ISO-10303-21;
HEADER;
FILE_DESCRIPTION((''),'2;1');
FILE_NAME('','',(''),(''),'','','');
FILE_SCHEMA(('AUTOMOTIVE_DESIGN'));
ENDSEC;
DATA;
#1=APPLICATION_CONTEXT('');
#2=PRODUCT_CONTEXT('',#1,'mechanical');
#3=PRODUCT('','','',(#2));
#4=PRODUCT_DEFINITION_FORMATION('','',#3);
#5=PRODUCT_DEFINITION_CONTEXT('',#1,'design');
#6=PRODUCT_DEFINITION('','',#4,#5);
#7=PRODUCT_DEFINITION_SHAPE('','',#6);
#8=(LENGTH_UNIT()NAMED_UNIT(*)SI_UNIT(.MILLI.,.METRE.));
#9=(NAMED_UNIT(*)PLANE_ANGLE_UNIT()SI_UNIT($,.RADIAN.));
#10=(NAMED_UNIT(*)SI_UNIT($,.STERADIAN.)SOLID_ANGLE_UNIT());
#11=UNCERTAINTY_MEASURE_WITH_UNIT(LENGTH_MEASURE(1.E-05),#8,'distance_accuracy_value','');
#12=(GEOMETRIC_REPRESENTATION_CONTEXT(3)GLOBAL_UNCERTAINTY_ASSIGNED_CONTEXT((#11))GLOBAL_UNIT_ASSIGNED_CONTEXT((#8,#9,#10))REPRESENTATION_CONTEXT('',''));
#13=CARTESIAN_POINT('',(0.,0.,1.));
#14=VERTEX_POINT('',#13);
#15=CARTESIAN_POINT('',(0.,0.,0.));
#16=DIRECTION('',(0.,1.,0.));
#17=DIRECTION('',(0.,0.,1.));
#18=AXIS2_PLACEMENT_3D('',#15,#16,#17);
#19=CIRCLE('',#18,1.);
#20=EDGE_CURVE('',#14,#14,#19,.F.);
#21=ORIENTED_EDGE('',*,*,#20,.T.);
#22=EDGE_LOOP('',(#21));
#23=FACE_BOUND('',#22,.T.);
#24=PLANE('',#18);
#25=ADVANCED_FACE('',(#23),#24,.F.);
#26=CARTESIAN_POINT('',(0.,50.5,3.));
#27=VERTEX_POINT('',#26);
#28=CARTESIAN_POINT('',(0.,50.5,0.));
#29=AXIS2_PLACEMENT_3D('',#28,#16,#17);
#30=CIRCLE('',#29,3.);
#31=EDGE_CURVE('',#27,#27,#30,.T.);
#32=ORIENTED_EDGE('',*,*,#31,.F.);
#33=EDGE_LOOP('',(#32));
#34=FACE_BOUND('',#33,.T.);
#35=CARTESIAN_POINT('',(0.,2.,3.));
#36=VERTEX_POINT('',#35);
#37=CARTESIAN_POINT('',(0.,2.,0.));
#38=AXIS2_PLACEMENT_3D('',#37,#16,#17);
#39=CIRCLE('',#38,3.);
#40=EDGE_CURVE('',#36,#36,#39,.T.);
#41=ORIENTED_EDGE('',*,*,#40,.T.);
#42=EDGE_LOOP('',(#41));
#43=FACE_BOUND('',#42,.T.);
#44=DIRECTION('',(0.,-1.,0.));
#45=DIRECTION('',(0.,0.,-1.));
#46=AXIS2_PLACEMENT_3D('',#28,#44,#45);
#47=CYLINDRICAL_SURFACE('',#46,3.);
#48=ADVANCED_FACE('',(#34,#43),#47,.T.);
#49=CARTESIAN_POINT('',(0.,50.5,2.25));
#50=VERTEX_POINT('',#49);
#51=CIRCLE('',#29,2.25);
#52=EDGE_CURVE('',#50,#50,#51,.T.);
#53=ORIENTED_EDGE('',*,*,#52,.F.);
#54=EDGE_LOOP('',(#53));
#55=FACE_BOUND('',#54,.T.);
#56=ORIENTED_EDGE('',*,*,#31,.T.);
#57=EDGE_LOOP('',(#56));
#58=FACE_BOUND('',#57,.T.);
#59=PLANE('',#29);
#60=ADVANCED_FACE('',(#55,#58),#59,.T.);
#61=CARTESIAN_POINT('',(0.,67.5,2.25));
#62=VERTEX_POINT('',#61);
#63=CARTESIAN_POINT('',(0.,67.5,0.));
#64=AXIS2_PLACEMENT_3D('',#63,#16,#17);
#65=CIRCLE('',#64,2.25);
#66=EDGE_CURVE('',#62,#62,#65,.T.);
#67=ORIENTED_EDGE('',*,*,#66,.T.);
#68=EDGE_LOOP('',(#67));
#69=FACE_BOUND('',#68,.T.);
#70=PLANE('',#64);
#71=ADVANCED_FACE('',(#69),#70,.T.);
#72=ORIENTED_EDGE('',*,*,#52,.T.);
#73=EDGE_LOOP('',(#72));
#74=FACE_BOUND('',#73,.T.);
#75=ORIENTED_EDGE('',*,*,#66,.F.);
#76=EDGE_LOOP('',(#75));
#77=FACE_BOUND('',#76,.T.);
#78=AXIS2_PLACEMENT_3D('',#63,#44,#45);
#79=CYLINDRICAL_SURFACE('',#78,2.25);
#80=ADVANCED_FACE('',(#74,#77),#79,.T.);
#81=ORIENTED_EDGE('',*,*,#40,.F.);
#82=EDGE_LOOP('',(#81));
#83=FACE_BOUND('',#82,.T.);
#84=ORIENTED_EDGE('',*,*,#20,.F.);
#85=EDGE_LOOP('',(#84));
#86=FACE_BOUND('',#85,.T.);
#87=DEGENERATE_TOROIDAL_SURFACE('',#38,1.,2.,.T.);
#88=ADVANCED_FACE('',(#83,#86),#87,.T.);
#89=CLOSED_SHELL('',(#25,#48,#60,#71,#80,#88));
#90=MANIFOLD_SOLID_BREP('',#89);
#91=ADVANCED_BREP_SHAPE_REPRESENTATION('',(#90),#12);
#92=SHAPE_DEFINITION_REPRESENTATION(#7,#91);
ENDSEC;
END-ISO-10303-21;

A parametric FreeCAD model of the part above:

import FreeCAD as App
import Part
import Sketcher
from FreeCAD import Vector


def edges_at(feature, points):
    """Names of the edges that pass closest to the given points."""
    edges = feature.Shape.Edges
    near = lambda p: min(range(len(edges)), key=lambda i: edges[i].distToShape(Part.Vertex(*p))[0])
    return sorted({f"Edge{near(p) + 1}" for p in points})

doc = App.newDocument("Part")
params = doc.addObject("Spreadsheet::Sheet", "Params")
for row, (alias, value) in enumerate([
    ("sketch1_diameter", "6 mm"),
    ("pad1_length", "50.5 mm"),
    ("fillet_radius", "2 mm"),
    ("sketch2_diameter", "4.5 mm"),
    ("pad2_length", "17 mm"),
], start=1):
    params.set(f"A{row}", alias)
    params.set(f"B{row}", "=" + value)
    params.setAlias(f"B{row}", alias)

body = doc.addObject("PartDesign::Body", "Body")

sketch1 = body.newObject("Sketcher::SketchObject", "Sketch")
sketch1.AttachmentSupport = (doc.getObject("XZ_Plane"), [""])
sketch1.MapMode = "FlatFace"
sketch1.addGeometry(Part.Circle(Vector(0, 0, 0), Vector(0, 0, 1), 3), False)
sketch1.addConstraint([
    Sketcher.Constraint("Coincident", 0, 3, -1, 1),
    Sketcher.Constraint("Diameter", 0, 6.0),
])
sketch1.setExpression("Constraints[1]", "Params.sketch1_diameter")
pad1 = body.newObject("PartDesign::Pad", "Pad")
pad1.Profile = sketch1
pad1.setExpression("Length", "Params.pad1_length")
pad1.Reversed = True
doc.recompute()

fillet = body.newObject("PartDesign::Fillet", "Fillet")
fillet.Base = (pad1, edges_at(pad1, [(0, 0, -3)]))
fillet.setExpression("Radius", "Params.fillet_radius")

sketch2 = body.newObject("Sketcher::SketchObject", "Sketch001")
sketch2.AttachmentSupport = (doc.getObject("XZ_Plane"), [""])
sketch2.MapMode = "FlatFace"
sketch2.AttachmentOffset = App.Placement(Vector(0, 0, -50.5), App.Rotation())
sketch2.addGeometry(Part.Circle(Vector(0, 0, 0), Vector(0, 0, 1), 2.25), False)
sketch2.addConstraint([
    Sketcher.Constraint("Coincident", 0, 3, -1, 1),
    Sketcher.Constraint("Diameter", 0, 4.5),
])
sketch2.setExpression("Constraints[1]", "Params.sketch2_diameter")
pad2 = body.newObject("PartDesign::Pad", "Pad001")
pad2.Profile = sketch2
pad2.setExpression("Length", "Params.pad2_length")
pad2.Reversed = True

doc.recompute()
